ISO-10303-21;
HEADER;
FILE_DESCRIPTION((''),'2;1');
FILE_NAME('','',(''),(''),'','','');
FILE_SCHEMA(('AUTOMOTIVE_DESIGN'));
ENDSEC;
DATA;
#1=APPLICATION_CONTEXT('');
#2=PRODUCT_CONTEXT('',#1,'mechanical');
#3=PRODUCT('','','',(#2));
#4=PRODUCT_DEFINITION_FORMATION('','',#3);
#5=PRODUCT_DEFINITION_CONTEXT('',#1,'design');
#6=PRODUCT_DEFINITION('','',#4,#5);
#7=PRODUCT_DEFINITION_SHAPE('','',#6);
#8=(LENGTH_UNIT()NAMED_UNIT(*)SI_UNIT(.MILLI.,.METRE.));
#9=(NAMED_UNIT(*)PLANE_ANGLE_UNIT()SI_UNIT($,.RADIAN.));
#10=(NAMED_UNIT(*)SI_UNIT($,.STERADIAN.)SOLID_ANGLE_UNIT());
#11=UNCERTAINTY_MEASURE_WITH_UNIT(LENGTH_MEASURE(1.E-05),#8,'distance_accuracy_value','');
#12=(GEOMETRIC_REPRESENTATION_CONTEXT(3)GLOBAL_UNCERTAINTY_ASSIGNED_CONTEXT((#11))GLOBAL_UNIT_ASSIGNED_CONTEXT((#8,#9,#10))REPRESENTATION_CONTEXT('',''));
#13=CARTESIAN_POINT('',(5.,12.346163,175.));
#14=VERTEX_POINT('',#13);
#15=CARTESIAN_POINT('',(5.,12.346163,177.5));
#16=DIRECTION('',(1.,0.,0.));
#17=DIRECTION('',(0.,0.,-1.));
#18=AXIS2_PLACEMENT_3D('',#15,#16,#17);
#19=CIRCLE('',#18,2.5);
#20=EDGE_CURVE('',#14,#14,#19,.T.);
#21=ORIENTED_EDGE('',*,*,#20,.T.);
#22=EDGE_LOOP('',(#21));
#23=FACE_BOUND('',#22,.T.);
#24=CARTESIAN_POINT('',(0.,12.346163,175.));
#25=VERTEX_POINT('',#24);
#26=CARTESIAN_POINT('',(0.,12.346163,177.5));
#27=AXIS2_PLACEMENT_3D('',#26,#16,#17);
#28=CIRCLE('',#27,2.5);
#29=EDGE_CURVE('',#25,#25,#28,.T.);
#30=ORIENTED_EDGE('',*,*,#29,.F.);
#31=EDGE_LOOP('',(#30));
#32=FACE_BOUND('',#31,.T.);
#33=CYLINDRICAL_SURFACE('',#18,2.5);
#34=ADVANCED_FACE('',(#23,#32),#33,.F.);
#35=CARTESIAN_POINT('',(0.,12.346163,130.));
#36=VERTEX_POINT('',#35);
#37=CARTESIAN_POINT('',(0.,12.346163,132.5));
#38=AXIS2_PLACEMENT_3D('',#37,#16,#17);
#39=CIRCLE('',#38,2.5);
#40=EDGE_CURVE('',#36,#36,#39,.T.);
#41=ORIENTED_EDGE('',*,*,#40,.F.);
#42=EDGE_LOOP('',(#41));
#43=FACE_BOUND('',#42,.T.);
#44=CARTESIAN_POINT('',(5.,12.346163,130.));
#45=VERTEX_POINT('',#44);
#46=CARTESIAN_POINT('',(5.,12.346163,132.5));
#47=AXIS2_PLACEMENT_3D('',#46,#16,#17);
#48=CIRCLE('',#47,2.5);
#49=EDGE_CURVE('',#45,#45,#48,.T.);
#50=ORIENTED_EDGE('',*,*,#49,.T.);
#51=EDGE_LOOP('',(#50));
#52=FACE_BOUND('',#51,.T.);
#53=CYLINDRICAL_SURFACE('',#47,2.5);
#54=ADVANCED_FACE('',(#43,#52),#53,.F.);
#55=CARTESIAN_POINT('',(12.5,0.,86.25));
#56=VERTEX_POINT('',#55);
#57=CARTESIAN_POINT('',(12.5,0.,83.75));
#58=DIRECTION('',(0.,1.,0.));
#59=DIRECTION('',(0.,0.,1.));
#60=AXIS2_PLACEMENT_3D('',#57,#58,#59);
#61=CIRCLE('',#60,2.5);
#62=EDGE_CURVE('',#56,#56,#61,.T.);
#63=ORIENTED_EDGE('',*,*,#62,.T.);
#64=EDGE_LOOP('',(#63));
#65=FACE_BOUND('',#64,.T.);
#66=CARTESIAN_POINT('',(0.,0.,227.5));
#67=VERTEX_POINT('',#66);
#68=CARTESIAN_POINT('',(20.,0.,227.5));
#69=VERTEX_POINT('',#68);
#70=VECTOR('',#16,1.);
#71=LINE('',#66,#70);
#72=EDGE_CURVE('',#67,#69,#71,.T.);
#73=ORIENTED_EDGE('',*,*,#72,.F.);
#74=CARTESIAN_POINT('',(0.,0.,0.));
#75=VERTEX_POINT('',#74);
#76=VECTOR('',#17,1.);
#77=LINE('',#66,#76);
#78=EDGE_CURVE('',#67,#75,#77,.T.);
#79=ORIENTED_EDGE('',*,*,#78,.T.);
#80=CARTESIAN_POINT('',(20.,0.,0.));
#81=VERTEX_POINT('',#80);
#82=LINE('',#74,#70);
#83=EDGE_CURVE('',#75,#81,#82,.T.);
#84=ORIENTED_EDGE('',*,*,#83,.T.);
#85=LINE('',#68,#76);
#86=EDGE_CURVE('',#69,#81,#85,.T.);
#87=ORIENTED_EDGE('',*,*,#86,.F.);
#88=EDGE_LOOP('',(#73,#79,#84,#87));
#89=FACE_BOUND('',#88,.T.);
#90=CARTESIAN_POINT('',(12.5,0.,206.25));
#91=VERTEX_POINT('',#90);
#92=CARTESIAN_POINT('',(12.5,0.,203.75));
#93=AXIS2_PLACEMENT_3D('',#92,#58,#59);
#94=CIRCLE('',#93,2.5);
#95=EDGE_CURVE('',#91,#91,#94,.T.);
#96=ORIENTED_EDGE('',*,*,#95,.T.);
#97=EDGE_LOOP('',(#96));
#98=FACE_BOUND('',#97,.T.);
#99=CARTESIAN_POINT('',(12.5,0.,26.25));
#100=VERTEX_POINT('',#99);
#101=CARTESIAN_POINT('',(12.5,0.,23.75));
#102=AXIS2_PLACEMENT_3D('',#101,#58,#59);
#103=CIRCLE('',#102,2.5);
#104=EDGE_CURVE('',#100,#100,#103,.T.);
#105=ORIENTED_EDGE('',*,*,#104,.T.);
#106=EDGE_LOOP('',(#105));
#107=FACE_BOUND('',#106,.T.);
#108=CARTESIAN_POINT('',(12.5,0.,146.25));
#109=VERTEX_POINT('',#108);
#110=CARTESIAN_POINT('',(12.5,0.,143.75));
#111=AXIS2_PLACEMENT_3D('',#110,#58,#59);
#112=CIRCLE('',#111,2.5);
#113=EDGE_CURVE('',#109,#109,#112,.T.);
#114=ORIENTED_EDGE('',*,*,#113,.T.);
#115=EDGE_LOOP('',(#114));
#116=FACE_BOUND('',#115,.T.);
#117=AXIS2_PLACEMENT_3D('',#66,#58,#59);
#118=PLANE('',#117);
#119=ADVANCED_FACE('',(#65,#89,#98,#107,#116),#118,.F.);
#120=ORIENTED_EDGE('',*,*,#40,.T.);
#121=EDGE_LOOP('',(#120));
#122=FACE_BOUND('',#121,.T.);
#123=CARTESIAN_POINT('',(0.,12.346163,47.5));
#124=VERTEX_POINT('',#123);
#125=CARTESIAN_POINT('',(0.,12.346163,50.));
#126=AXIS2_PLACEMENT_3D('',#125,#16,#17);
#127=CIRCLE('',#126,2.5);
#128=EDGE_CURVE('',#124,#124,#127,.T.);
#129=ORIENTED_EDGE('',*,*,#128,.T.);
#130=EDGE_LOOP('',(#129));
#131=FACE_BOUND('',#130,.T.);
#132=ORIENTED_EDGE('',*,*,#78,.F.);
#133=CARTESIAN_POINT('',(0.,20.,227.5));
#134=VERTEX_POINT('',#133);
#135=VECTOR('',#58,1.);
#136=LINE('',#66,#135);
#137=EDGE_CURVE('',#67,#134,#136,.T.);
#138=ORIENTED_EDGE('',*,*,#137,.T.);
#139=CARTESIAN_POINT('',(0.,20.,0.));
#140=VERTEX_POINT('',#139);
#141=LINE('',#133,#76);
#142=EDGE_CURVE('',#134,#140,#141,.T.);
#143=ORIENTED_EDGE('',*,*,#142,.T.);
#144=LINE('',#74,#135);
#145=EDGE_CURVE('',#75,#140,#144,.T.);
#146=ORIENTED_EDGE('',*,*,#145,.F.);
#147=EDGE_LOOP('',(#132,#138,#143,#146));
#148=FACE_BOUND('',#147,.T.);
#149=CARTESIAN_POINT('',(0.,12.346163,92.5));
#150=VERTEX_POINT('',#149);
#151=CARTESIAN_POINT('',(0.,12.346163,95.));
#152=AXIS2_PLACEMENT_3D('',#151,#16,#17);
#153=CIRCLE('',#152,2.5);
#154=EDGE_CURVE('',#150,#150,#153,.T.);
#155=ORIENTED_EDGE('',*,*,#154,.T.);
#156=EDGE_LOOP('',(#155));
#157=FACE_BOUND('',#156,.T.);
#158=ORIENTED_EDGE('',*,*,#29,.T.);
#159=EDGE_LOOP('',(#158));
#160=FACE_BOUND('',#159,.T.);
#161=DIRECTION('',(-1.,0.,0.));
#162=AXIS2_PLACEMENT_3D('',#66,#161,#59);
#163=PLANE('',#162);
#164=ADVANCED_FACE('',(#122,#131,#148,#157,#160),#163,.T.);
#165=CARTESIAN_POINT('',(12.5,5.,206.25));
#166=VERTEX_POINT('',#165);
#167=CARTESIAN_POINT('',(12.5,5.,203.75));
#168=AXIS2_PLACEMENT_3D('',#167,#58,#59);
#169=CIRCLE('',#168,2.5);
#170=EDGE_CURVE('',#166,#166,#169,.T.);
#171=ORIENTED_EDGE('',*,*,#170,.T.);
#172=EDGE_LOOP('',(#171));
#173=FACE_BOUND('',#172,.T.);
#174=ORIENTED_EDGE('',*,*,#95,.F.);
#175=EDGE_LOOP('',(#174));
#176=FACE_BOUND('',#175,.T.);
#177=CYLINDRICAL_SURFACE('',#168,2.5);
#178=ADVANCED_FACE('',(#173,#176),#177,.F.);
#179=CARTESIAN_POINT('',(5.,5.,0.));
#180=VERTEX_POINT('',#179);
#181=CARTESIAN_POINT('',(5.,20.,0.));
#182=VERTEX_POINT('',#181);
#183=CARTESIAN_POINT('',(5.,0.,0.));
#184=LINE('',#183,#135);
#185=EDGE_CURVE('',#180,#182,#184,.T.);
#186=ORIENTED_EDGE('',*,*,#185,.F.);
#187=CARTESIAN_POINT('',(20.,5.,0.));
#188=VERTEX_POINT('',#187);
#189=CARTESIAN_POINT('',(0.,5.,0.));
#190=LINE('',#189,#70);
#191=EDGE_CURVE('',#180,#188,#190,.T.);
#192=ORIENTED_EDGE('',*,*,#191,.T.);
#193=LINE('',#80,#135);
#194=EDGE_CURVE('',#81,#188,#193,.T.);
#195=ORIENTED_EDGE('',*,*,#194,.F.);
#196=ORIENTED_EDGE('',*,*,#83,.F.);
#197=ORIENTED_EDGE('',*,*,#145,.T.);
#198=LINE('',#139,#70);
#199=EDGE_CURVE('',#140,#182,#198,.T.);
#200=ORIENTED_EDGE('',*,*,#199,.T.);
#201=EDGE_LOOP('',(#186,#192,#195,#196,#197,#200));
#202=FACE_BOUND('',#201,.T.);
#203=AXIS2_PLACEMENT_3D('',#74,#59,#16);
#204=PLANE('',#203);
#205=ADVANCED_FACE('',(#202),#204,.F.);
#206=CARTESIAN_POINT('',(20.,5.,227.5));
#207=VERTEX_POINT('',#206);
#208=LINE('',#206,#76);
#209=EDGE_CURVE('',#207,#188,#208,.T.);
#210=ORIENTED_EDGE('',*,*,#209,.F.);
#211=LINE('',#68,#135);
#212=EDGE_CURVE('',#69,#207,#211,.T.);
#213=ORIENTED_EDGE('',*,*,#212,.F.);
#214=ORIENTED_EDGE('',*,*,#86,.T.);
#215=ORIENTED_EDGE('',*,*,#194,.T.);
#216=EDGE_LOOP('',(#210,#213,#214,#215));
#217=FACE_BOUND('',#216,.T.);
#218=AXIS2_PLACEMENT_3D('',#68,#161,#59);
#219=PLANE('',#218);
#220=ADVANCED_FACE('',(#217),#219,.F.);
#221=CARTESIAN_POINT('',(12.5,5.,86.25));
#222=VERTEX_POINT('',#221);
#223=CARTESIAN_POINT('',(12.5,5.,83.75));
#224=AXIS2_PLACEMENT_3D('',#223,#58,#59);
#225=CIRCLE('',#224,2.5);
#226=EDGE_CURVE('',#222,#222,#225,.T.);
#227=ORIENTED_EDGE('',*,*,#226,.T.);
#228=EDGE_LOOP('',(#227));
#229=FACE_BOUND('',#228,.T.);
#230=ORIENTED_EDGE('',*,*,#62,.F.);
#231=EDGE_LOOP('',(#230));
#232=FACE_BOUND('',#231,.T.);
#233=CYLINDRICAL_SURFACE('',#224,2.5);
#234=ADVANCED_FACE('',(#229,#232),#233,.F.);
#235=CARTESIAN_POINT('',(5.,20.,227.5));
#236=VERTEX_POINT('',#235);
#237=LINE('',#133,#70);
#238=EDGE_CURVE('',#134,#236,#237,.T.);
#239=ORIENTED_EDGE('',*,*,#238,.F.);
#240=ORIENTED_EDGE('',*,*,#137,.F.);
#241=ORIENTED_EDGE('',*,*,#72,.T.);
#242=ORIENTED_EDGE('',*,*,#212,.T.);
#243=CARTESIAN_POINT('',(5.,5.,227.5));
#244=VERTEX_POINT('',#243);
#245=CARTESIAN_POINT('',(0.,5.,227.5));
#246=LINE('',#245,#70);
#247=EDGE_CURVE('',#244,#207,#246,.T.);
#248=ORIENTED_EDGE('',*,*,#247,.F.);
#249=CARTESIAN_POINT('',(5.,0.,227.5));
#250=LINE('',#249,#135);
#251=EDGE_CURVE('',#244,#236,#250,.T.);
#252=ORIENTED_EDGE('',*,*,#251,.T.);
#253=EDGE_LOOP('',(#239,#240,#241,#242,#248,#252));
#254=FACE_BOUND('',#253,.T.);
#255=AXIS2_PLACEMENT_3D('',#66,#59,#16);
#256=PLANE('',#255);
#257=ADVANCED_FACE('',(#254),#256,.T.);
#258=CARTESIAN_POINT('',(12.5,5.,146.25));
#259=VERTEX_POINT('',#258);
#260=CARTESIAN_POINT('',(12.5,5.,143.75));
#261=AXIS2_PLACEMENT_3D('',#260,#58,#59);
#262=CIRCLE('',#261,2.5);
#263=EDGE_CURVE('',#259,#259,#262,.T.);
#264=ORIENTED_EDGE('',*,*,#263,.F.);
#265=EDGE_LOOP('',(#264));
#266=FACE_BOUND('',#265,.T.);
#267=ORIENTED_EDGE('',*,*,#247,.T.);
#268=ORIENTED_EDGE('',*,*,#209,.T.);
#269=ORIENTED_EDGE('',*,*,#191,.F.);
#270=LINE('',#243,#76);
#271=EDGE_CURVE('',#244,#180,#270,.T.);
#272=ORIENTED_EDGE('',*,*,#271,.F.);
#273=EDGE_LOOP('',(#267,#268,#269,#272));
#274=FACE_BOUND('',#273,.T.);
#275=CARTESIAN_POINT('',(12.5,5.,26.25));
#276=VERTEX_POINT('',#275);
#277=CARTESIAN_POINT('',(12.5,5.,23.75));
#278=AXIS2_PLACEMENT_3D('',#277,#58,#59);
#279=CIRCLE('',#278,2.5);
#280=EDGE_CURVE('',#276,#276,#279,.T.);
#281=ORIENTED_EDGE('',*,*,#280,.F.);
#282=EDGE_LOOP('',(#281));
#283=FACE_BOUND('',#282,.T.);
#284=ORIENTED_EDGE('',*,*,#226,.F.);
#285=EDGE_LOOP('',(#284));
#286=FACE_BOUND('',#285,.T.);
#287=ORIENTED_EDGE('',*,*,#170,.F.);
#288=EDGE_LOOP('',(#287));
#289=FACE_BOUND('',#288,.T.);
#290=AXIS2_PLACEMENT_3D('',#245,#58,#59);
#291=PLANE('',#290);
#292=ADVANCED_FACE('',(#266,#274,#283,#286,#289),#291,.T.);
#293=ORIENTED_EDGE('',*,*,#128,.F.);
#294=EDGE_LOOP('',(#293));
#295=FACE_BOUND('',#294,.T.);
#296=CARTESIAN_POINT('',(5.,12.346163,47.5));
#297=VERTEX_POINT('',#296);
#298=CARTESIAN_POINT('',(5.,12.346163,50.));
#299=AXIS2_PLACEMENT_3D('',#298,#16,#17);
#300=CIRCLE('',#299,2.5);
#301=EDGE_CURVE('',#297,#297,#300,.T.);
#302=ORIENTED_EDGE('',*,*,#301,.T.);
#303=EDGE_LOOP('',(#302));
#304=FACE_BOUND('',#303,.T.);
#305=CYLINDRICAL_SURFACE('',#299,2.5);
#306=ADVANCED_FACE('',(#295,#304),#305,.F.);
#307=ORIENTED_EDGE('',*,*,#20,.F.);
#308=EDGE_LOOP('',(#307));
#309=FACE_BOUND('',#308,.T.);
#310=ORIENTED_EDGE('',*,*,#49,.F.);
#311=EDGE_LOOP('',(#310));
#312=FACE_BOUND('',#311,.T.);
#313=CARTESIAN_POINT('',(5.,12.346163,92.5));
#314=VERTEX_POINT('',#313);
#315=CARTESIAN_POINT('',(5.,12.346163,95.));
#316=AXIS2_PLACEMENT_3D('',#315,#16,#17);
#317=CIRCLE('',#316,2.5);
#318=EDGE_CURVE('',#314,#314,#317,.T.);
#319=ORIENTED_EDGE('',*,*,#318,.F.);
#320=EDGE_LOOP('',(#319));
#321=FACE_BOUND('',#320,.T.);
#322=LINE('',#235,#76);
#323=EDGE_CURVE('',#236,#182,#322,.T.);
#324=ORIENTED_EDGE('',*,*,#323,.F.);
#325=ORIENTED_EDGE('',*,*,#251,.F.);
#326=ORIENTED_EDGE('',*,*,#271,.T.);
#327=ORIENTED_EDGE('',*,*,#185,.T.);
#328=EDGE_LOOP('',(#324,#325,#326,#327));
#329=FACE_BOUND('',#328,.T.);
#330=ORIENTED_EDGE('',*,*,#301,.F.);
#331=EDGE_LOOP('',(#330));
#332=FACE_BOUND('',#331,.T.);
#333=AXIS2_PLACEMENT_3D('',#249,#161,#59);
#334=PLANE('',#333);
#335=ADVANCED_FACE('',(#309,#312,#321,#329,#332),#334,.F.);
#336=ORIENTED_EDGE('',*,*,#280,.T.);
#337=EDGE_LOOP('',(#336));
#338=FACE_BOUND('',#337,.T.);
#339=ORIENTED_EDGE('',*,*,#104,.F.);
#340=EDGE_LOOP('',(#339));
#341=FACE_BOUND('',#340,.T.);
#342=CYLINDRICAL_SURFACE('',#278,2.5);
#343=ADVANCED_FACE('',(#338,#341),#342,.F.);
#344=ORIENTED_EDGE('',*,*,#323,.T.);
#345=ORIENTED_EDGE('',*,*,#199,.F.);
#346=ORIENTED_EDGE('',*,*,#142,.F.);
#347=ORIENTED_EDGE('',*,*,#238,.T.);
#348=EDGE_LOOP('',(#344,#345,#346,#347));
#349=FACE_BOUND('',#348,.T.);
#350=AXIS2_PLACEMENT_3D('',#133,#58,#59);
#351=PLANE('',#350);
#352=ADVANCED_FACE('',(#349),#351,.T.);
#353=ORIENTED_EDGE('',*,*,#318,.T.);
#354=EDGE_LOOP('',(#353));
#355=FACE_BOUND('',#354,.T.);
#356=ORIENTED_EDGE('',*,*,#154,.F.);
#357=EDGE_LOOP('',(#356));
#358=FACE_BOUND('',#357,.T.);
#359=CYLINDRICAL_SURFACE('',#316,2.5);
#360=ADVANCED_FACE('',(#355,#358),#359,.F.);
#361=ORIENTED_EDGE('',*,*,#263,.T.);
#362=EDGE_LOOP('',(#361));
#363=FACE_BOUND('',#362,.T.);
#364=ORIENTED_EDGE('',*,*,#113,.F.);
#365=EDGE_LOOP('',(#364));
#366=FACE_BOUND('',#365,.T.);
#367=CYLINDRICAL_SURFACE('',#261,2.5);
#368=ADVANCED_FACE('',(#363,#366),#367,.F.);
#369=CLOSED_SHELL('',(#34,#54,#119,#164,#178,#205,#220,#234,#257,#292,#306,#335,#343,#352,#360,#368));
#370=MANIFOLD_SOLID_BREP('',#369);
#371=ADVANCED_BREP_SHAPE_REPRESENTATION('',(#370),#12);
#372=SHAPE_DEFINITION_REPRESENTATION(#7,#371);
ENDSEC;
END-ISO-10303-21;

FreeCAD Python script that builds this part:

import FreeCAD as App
import Part
import Sketcher
from FreeCAD import Vector


def add_polygon(sketch, points):
    """Adds a closed chain of lines whose ends are joined by coincident constraints."""
    first, n = sketch.GeometryCount, len(points)
    for a, b in zip(points, points[1:] + points[:1]):
        sketch.addGeometry(Part.LineSegment(App.Vector(*a, 0), App.Vector(*b, 0)), False)
    for i in range(n):
        sketch.addConstraint(Sketcher.Constraint("Coincident", first + i, 2, first + (i + 1) % n, 1))

doc = App.newDocument("Part")
body = doc.addObject("PartDesign::Body", "Body")

# Sketch on XY plane
sketch1 = body.newObject("Sketcher::SketchObject", "Sketch")
sketch1.AttachmentSupport = (doc.getObject("XY_Plane"), [""])
sketch1.MapMode = "FlatFace"
add_polygon(sketch1, [(0, 0), (20, 0), (20, 5), (5, 5), (5, 20), (0, 20)])  # lines 0-5
sketch1.addConstraint(Sketcher.Constraint("Horizontal", 0))
sketch1.addConstraint(Sketcher.Constraint("Vertical", 1))
sketch1.addConstraint(Sketcher.Constraint("Horizontal", 2))
sketch1.addConstraint(Sketcher.Constraint("Vertical", 3))
sketch1.addConstraint(Sketcher.Constraint("Horizontal", 4))
sketch1.addConstraint(Sketcher.Constraint("Vertical", 5))
sketch1.addConstraint(Sketcher.Constraint("Coincident", 5, 2, -1, 1))
sketch1.addConstraint(Sketcher.Constraint("Equal", 4, 1))
sketch1.addConstraint(Sketcher.Constraint("Equal", 2, 3))
sketch1.addConstraint(Sketcher.Constraint("DistanceX", 0, 1, 0, 2, 20.0))
sketch1.addConstraint(Sketcher.Constraint("DistanceX", 2, 2, 2, 1, 15.0))
pad1 = body.newObject("PartDesign::Pad", "Pad")
pad1.Profile = sketch1
pad1.Length = 227.5

# Sketch on XZ plane
sketch2 = body.newObject("Sketcher::SketchObject", "Sketch001")
sketch2.AttachmentSupport = (doc.getObject("XZ_Plane"), [""])
sketch2.MapMode = "FlatFace"
sketch2.AttachmentOffset = App.Placement(Vector(0, 0, -5), App.Rotation())
sketch2.addGeometry(Part.Circle(Vector(12.5, 203.8, 0), Vector(0, 0, 1), 2.5), False)
sketch2.addGeometry(Part.Circle(Vector(12.5, 143.8, 0), Vector(0, 0, 1), 2.5), False)
sketch2.addGeometry(Part.Circle(Vector(12.5, 83.8, 0), Vector(0, 0, 1), 2.5), False)
sketch2.addGeometry(Part.Circle(Vector(12.5, 23.8, 0), Vector(0, 0, 1), 2.5), False)
sketch2.addConstraint(Sketcher.Constraint("Equal", 0, 1))
sketch2.addConstraint(Sketcher.Constraint("Equal", 1, 2))
sketch2.addConstraint(Sketcher.Constraint("Equal", 2, 3))
sketch2.addConstraint(Sketcher.Constraint("Vertical", 0, 3, 1, 3))
sketch2.addConstraint(Sketcher.Constraint("Vertical", 1, 3, 2, 3))
sketch2.addConstraint(Sketcher.Constraint("Vertical", 2, 3, 3, 3))
sketch2.addConstraint(Sketcher.Constraint("Diameter", 0, 5.0))
sketch2.addConstraint(Sketcher.Constraint("DistanceY", 1, 3, 0, 3, 60.0))
sketch2.addConstraint(Sketcher.Constraint("DistanceY", 2, 3, 1, 3, 60.0))
sketch2.addConstraint(Sketcher.Constraint("DistanceY", 3, 3, 2, 3, 60.0))
sketch2.addConstraint(Sketcher.Constraint("DistanceX", -1, 1, 0, 3, 12.5))
sketch2.addConstraint(Sketcher.Constraint("DistanceY", -1, 1, 0, 3, 203.75))
doc.recompute()
hole = body.newObject("PartDesign::Hole", "Hole")
hole.Profile = sketch2
hole.ThreadType = "None"
hole.Diameter = 5
hole.DepthType = "ThroughAll"
hole.Reversed = True

# Sketch on YZ plane
sketch3 = body.newObject("Sketcher::SketchObject", "Sketch002")
sketch3.AttachmentSupport = (doc.getObject("YZ_Plane"), [""])
sketch3.MapMode = "FlatFace"
sketch3.AttachmentOffset = App.Placement(Vector(0, 0, 5), App.Rotation())
sketch3.addGeometry(Part.Circle(Vector(12.3, 177.5, 0), Vector(0, 0, 1), 2.5), False)
sketch3.addGeometry(Part.Circle(Vector(12.3, 132.5, 0), Vector(0, 0, 1), 2.5), False)
sketch3.addGeometry(Part.Circle(Vector(12.3, 95, 0), Vector(0, 0, 1), 2.5), False)
sketch3.addGeometry(Part.Circle(Vector(12.3, 50, 0), Vector(0, 0, 1), 2.5), False)
sketch3.addConstraint(Sketcher.Constraint("Equal", 0, 1))
sketch3.addConstraint(Sketcher.Constraint("Equal", 1, 2))
sketch3.addConstraint(Sketcher.Constraint("Equal", 2, 3))
sketch3.addConstraint(Sketcher.Constraint("Vertical", 0, 3, 1, 3))
sketch3.addConstraint(Sketcher.Constraint("Vertical", 1, 3, 2, 3))
sketch3.addConstraint(Sketcher.Constraint("Vertical", 2, 3, 3, 3))
sketch3.addConstraint(Sketcher.Constraint("Diameter", 0, 5.0))
sketch3.addConstraint(Sketcher.Constraint("DistanceY", -1, 1, 2, 3, 95.0))
sketch3.addConstraint(Sketcher.Constraint("DistanceY", -1, 1, 3, 3, 50.0))
sketch3.addConstraint(Sketcher.Constraint("DistanceY", 1, 3, 0, 3, 45.0))
sketch3.addConstraint(Sketcher.Constraint("DistanceY", -1, 1, 0, 3, 177.5))
sketch3.addConstraint(Sketcher.Constraint("DistanceX", -1, 1, 0, 3, 12.346163))
doc.recompute()
hole2 = body.newObject("PartDesign::Hole", "Hole001")
hole2.Profile = sketch3
hole2.ThreadType = "None"
hole2.Diameter = 5
hole2.DepthType = "ThroughAll"

doc.recompute()
